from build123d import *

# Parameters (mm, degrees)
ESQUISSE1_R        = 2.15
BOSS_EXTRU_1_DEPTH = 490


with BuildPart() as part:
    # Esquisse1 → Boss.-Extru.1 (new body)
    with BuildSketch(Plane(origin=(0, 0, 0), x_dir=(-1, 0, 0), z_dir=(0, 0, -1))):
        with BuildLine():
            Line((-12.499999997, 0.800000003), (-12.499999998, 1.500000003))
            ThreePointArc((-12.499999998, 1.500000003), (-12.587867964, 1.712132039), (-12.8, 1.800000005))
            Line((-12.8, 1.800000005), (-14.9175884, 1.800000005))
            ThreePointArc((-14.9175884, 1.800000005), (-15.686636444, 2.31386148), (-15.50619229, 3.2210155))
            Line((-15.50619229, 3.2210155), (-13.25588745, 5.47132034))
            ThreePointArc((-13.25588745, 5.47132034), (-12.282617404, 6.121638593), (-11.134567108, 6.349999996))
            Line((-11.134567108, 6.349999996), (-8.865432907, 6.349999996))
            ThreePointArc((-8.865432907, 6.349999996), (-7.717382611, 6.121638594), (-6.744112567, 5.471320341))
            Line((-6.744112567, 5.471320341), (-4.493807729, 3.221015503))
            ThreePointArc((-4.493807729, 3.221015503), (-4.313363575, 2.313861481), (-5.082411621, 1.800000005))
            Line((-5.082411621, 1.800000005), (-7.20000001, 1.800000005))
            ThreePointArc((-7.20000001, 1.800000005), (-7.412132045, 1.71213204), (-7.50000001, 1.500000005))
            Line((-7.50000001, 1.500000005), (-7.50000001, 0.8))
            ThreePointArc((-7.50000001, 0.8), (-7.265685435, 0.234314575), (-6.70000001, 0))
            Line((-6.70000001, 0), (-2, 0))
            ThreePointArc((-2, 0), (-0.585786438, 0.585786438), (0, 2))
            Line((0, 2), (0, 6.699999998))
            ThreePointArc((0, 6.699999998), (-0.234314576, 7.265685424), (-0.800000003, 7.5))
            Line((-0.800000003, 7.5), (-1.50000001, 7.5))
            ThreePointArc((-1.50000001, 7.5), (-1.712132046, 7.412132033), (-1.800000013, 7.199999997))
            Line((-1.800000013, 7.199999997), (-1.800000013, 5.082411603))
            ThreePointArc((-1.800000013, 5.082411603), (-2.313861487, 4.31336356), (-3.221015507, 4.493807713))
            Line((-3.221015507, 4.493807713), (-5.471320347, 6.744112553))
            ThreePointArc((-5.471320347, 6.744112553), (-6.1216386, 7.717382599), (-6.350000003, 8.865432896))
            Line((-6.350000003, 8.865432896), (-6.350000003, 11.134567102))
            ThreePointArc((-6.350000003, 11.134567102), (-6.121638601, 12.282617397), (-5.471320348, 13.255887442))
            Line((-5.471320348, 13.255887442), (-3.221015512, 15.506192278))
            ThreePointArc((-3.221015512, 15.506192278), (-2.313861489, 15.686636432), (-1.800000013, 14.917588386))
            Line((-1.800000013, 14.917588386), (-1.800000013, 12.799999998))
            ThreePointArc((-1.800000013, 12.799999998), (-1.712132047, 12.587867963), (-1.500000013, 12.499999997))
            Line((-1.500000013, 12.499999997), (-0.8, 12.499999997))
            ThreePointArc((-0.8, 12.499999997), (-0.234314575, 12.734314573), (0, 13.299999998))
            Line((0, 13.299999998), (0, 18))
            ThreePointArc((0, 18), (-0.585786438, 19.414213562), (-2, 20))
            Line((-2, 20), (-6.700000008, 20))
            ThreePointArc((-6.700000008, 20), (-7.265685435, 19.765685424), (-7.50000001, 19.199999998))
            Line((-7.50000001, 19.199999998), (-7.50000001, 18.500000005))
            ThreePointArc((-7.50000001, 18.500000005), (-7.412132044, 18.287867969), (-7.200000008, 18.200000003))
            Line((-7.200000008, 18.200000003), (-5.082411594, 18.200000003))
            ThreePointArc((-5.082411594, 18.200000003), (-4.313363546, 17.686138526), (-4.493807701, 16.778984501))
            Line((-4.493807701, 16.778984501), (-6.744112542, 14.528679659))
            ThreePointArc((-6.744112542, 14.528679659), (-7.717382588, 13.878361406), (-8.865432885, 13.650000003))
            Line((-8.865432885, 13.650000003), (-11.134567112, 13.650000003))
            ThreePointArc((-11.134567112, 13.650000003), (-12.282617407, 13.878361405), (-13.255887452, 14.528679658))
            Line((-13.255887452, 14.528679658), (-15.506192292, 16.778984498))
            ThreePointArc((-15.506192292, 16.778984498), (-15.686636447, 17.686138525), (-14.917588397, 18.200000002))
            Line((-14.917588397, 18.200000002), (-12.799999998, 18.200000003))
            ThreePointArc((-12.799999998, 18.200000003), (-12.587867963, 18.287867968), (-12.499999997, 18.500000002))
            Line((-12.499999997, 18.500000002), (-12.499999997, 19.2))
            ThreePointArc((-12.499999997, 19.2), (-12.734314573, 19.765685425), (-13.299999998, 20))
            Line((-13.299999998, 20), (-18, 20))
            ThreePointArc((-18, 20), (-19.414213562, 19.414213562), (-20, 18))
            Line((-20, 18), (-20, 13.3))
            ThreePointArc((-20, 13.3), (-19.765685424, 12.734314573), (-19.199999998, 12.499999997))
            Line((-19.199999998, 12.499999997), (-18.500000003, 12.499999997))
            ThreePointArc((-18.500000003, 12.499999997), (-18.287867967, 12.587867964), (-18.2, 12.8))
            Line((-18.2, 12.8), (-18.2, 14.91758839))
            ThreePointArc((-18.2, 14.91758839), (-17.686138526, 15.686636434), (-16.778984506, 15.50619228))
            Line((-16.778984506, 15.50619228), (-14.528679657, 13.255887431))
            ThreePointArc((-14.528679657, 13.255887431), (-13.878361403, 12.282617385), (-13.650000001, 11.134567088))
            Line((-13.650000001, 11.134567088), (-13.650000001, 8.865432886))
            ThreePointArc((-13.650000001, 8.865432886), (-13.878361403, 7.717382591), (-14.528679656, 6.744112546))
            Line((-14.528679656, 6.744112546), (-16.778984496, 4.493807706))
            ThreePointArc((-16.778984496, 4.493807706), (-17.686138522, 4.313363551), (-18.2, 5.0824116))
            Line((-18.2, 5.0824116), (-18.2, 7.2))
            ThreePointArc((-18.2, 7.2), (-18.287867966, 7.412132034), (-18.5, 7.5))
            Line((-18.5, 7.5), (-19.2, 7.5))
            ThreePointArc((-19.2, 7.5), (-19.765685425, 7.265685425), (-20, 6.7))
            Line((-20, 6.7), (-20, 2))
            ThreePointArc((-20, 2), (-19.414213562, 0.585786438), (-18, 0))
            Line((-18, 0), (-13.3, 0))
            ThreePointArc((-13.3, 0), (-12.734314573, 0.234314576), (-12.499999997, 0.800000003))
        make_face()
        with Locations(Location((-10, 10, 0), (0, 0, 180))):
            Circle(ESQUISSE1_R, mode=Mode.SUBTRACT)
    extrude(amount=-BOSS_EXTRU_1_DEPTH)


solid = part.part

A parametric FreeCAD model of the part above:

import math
import FreeCAD as App
import Part
import Sketcher
from FreeCAD import Vector

doc = App.newDocument("Part")
body = doc.addObject("PartDesign::Body", "Body")

# Sketch on XY plane
sketch1 = body.newObject("Sketcher::SketchObject", "Sketch")
sketch1.AttachmentSupport = (doc.getObject("XY_Plane"), [""])
sketch1.MapMode = "FlatFace"
sketch1.addGeometry(Part.LineSegment(Vector(12.5, 0.8, 0), Vector(12.5, 1.5, 0)), False)
sketch1.addGeometry(Part.ArcOfCircle(Part.Circle(Vector(12.8, 1.5, 0), Vector(0, 0, 1), 0.3), math.radians(90), math.radians(180)), False)
sketch1.addGeometry(Part.LineSegment(Vector(12.8, 1.8, 0), Vector(14.92, 1.8, 0)), False)
sketch1.addGeometry(Part.ArcOfCircle(Part.Circle(Vector(14.92, 2.63, 0), Vector(0, 0, 1), 0.83), math.radians(-90), math.radians(45)), False)
sketch1.addGeometry(Part.LineSegment(Vector(15.51, 3.22, 0), Vector(13.26, 5.47, 0)), False)
sketch1.addGeometry(Part.ArcOfCircle(Part.Circle(Vector(11.13, 3.35, 0), Vector(0, 0, 1), 3), math.radians(45), math.radians(90)), False)
sketch1.addGeometry(Part.LineSegment(Vector(11.13, 6.35, 0), Vector(8.87, 6.35, 0)), False)
sketch1.addGeometry(Part.ArcOfCircle(Part.Circle(Vector(8.87, 3.35, 0), Vector(0, 0, 1), 3), math.radians(90), math.radians(135)), False)
sketch1.addGeometry(Part.LineSegment(Vector(6.74, 5.47, 0), Vector(4.49, 3.22, 0)), False)
sketch1.addGeometry(Part.ArcOfCircle(Part.Circle(Vector(5.08, 2.63, 0), Vector(0, 0, 1), 0.83), math.radians(135), math.radians(270)), False)
sketch1.addGeometry(Part.LineSegment(Vector(5.08, 1.8, 0), Vector(7.2, 1.8, 0)), False)
sketch1.addGeometry(Part.ArcOfCircle(Part.Circle(Vector(7.2, 1.5, 0), Vector(0, 0, 1), 0.3), math.radians(0), math.radians(90)), False)
sketch1.addGeometry(Part.LineSegment(Vector(7.5, 1.5, 0), Vector(7.5, 0.8, 0)), False)
sketch1.addGeometry(Part.ArcOfCircle(Part.Circle(Vector(6.7, 0.8, 0), Vector(0, 0, 1), 0.8), math.radians(-90), math.radians(0)), False)
sketch1.addGeometry(Part.LineSegment(Vector(6.7, 0, 0), Vector(2, 0, 0)), False)
sketch1.addGeometry(Part.ArcOfCircle(Part.Circle(Vector(2, 2, 0), Vector(0, 0, 1), 2), math.radians(-180), math.radians(-90)), False)
sketch1.addGeometry(Part.LineSegment(Vector(0, 2, 0), Vector(0, 6.7, 0)), False)
sketch1.addGeometry(Part.ArcOfCircle(Part.Circle(Vector(0.8, 6.7, 0), Vector(0, 0, 1), 0.8), math.radians(90), math.radians(180)), False)
sketch1.addGeometry(Part.LineSegment(Vector(0.8, 7.5, 0), Vector(1.5, 7.5, 0)), False)
sketch1.addGeometry(Part.ArcOfCircle(Part.Circle(Vector(1.5, 7.2, 0), Vector(0, 0, 1), 0.3), math.radians(0), math.radians(90)), False)
sketch1.addGeometry(Part.LineSegment(Vector(1.8, 7.2, 0), Vector(1.8, 5.08, 0)), False)
sketch1.addGeometry(Part.ArcOfCircle(Part.Circle(Vector(2.63, 5.08, 0), Vector(0, 0, 1), 0.83), math.radians(-180), math.radians(-45)), False)
sketch1.addGeometry(Part.LineSegment(Vector(3.22, 4.49, 0), Vector(5.47, 6.74, 0)), False)
sketch1.addGeometry(Part.ArcOfCircle(Part.Circle(Vector(3.35, 8.87, 0), Vector(0, 0, 1), 3), math.radians(-45), math.radians(0)), False)
sketch1.addGeometry(Part.LineSegment(Vector(6.35, 8.87, 0), Vector(6.35, 11.13, 0)), False)
sketch1.addGeometry(Part.ArcOfCircle(Part.Circle(Vector(3.35, 11.13, 0), Vector(0, 0, 1), 3), math.radians(0), math.radians(45)), False)
sketch1.addGeometry(Part.LineSegment(Vector(5.47, 13.26, 0), Vector(3.22, 15.51, 0)), False)
sketch1.addGeometry(Part.ArcOfCircle(Part.Circle(Vector(2.63, 14.92, 0), Vector(0, 0, 1), 0.83), math.radians(45), math.radians(180)), False)
sketch1.addGeometry(Part.LineSegment(Vector(1.8, 14.92, 0), Vector(1.8, 12.8, 0)), False)
sketch1.addGeometry(Part.ArcOfCircle(Part.Circle(Vector(1.5, 12.8, 0), Vector(0, 0, 1), 0.3), math.radians(-90), math.radians(0)), False)
sketch1.addGeometry(Part.LineSegment(Vector(1.5, 12.5, 0), Vector(0.8, 12.5, 0)), False)
sketch1.addGeometry(Part.ArcOfCircle(Part.Circle(Vector(0.8, 13.3, 0), Vector(0, 0, 1), 0.8), math.radians(-180), math.radians(-90)), False)
sketch1.addGeometry(Part.LineSegment(Vector(0, 13.3, 0), Vector(0, 18, 0)), False)
sketch1.addGeometry(Part.ArcOfCircle(Part.Circle(Vector(2, 18, 0), Vector(0, 0, 1), 2), math.radians(90), math.radians(180)), False)
sketch1.addGeometry(Part.LineSegment(Vector(2, 20, 0), Vector(6.7, 20, 0)), False)
sketch1.addGeometry(Part.ArcOfCircle(Part.Circle(Vector(6.7, 19.2, 0), Vector(0, 0, 1), 0.8), math.radians(0), math.radians(90)), False)
sketch1.addGeometry(Part.LineSegment(Vector(7.5, 19.2, 0), Vector(7.5, 18.5, 0)), False)
sketch1.addGeometry(Part.ArcOfCircle(Part.Circle(Vector(7.2, 18.5, 0), Vector(0, 0, 1), 0.3), math.radians(-90), math.radians(0)), False)
sketch1.addGeometry(Part.LineSegment(Vector(7.2, 18.2, 0), Vector(5.08, 18.2, 0)), False)
sketch1.addGeometry(Part.ArcOfCircle(Part.Circle(Vector(5.08, 17.37, 0), Vector(0, 0, 1), 0.83), math.radians(90), math.radians(225)), False)
sketch1.addGeometry(Part.LineSegment(Vector(4.49, 16.78, 0), Vector(6.74, 14.53, 0)), False)
sketch1.addGeometry(Part.ArcOfCircle(Part.Circle(Vector(8.87, 16.65, 0), Vector(0, 0, 1), 3), math.radians(-135), math.radians(-90)), False)
sketch1.addGeometry(Part.LineSegment(Vector(8.87, 13.65, 0), Vector(11.13, 13.65, 0)), False)
sketch1.addGeometry(Part.ArcOfCircle(Part.Circle(Vector(11.13, 16.65, 0), Vector(0, 0, 1), 3), math.radians(-90), math.radians(-45)), False)
sketch1.addGeometry(Part.LineSegment(Vector(13.26, 14.53, 0), Vector(15.51, 16.78, 0)), False)
sketch1.addGeometry(Part.ArcOfCircle(Part.Circle(Vector(14.92, 17.37, 0), Vector(0, 0, 1), 0.83), math.radians(-45), math.radians(90)), False)
sketch1.addGeometry(Part.LineSegment(Vector(14.92, 18.2, 0), Vector(12.8, 18.2, 0)), False)
sketch1.addGeometry(Part.ArcOfCircle(Part.Circle(Vector(12.8, 18.5, 0), Vector(0, 0, 1), 0.3), math.radians(-180), math.radians(-90)), False)
sketch1.addGeometry(Part.LineSegment(Vector(12.5, 18.5, 0), Vector(12.5, 19.2, 0)), False)
sketch1.addGeometry(Part.ArcOfCircle(Part.Circle(Vector(13.3, 19.2, 0), Vector(0, 0, 1), 0.8), math.radians(90), math.radians(180)), False)
sketch1.addGeometry(Part.LineSegment(Vector(13.3, 20, 0), Vector(18, 20, 0)), False)
sketch1.addGeometry(Part.ArcOfCircle(Part.Circle(Vector(18, 18, 0), Vector(0, 0, 1), 2), math.radians(0), math.radians(90)), False)
sketch1.addGeometry(Part.LineSegment(Vector(20, 18, 0), Vector(20, 13.3, 0)), False)
sketch1.addGeometry(Part.ArcOfCircle(Part.Circle(Vector(19.2, 13.3, 0), Vector(0, 0, 1), 0.8), math.radians(-90), math.radians(0)), False)
sketch1.addGeometry(Part.LineSegment(Vector(19.2, 12.5, 0), Vector(18.5, 12.5, 0)), False)
sketch1.addGeometry(Part.ArcOfCircle(Part.Circle(Vector(18.5, 12.8, 0), Vector(0, 0, 1), 0.3), math.radians(-180), math.radians(-90)), False)
sketch1.addGeometry(Part.LineSegment(Vector(18.2, 12.8, 0), Vector(18.2, 14.92, 0)), False)
sketch1.addGeometry(Part.ArcOfCircle(Part.Circle(Vector(17.37, 14.92, 0), Vector(0, 0, 1), 0.83), math.radians(0), math.radians(135)), False)
sketch1.addGeometry(Part.LineSegment(Vector(16.78, 15.51, 0), Vector(14.53, 13.26, 0)), False)
sketch1.addGeometry(Part.ArcOfCircle(Part.Circle(Vector(16.65, 11.13, 0), Vector(0, 0, 1), 3), math.radians(135), math.radians(180)), False)
sketch1.addGeometry(Part.LineSegment(Vector(13.65, 11.13, 0), Vector(13.65, 8.87, 0)), False)
sketch1.addGeometry(Part.ArcOfCircle(Part.Circle(Vector(16.65, 8.87, 0), Vector(0, 0, 1), 3), math.radians(180), math.radians(225)), False)
sketch1.addGeometry(Part.LineSegment(Vector(14.53, 6.74, 0), Vector(16.78, 4.49, 0)), False)
sketch1.addGeometry(Part.ArcOfCircle(Part.Circle(Vector(17.37, 5.08, 0), Vector(0, 0, 1), 0.83), math.radians(-135), math.radians(0)), False)
sketch1.addGeometry(Part.LineSegment(Vector(18.2, 5.08, 0), Vector(18.2, 7.2, 0)), False)
sketch1.addGeometry(Part.ArcOfCircle(Part.Circle(Vector(18.5, 7.2, 0), Vector(0, 0, 1), 0.3), math.radians(90), math.radians(180)), False)
sketch1.addGeometry(Part.LineSegment(Vector(18.5, 7.5, 0), Vector(19.2, 7.5, 0)), False)
sketch1.addGeometry(Part.ArcOfCircle(Part.Circle(Vector(19.2, 6.7, 0), Vector(0, 0, 1), 0.8), math.radians(0), math.radians(90)), False)
sketch1.addGeometry(Part.LineSegment(Vector(20, 6.7, 0), Vector(20, 2, 0)), False)
sketch1.addGeometry(Part.ArcOfCircle(Part.Circle(Vector(18, 2, 0), Vector(0, 0, 1), 2), math.radians(-90), math.radians(0)), False)
sketch1.addGeometry(Part.LineSegment(Vector(18, 0, 0), Vector(13.3, 0, 0)), False)
sketch1.addGeometry(Part.ArcOfCircle(Part.Circle(Vector(13.3, 0.8, 0), Vector(0, 0, 1), 0.8), math.radians(180), math.radians(270)), False)
sketch1.addGeometry(Part.Circle(Vector(10, 10, 0), Vector(0, 0, 1), 2.15), False)
sketch1.addConstraint(Sketcher.Constraint("Tangent", 0, 2, 1, 2))
sketch1.addConstraint(Sketcher.Constraint("Tangent", 1, 1, 2, 1))
sketch1.addConstraint(Sketcher.Constraint("Tangent", 2, 2, 3, 1))
sketch1.addConstraint(Sketcher.Constraint("Tangent", 3, 2, 4, 1))
sketch1.addConstraint(Sketcher.Constraint("Tangent", 4, 2, 5, 1))
sketch1.addConstraint(Sketcher.Constraint("Tangent", 5, 2, 6, 1))
sketch1.addConstraint(Sketcher.Constraint("Tangent", 6, 2, 7, 1))
sketch1.addConstraint(Sketcher.Constraint("Tangent", 7, 2, 8, 1))
sketch1.addConstraint(Sketcher.Constraint("Tangent", 8, 2, 9, 1))
sketch1.addConstraint(Sketcher.Constraint("Tangent", 9, 2, 10, 1))
sketch1.addConstraint(Sketcher.Constraint("Tangent", 10, 2, 11, 2))
sketch1.addConstraint(Sketcher.Constraint("Tangent", 11, 1, 12, 1))
sketch1.addConstraint(Sketcher.Constraint("Tangent", 12, 2, 13, 2))
sketch1.addConstraint(Sketcher.Constraint("Tangent", 13, 1, 14, 1))
sketch1.addConstraint(Sketcher.Constraint("Tangent", 14, 2, 15, 2))
sketch1.addConstraint(Sketcher.Constraint("Tangent", 15, 1, 16, 1))
sketch1.addConstraint(Sketcher.Constraint("Tangent", 16, 2, 17, 2))
sketch1.addConstraint(Sketcher.Constraint("Tangent", 17, 1, 18, 1))
sketch1.addConstraint(Sketcher.Constraint("Tangent", 18, 2, 19, 2))
sketch1.addConstraint(Sketcher.Constraint("Tangent", 19, 1, 20, 1))
sketch1.addConstraint(Sketcher.Constraint("Tangent", 20, 2, 21, 1))
sketch1.addConstraint(Sketcher.Constraint("Tangent", 21, 2, 22, 1))
sketch1.addConstraint(Sketcher.Constraint("Tangent", 22, 2, 23, 1))
sketch1.addConstraint(Sketcher.Constraint("Tangent", 23, 2, 24, 1))
sketch1.addConstraint(Sketcher.Constraint("Tangent", 24, 2, 25, 1))
sketch1.addConstraint(Sketcher.Constraint("Tangent", 25, 2, 26, 1))
sketch1.addConstraint(Sketcher.Constraint("Tangent", 26, 2, 27, 1))
sketch1.addConstraint(Sketcher.Constraint("Tangent", 27, 2, 28, 1))
sketch1.addConstraint(Sketcher.Constraint("Tangent", 28, 2, 29, 2))
sketch1.addConstraint(Sketcher.Constraint("Tangent", 29, 1, 30, 1))
sketch1.addConstraint(Sketcher.Constraint("Tangent", 30, 2, 31, 2))
sketch1.addConstraint(Sketcher.Constraint("Tangent", 31, 1, 32, 1))
sketch1.addConstraint(Sketcher.Constraint("Tangent", 32, 2, 33, 2))
sketch1.addConstraint(Sketcher.Constraint("Tangent", 33, 1, 34, 1))
sketch1.addConstraint(Sketcher.Constraint("Tangent", 34, 2, 35, 2))
sketch1.addConstraint(Sketcher.Constraint("Tangent", 35, 1, 36, 1))
sketch1.addConstraint(Sketcher.Constraint("Tangent", 36, 2, 37, 2))
sketch1.addConstraint(Sketcher.Constraint("Tangent", 37, 1, 38, 1))
sketch1.addConstraint(Sketcher.Constraint("Tangent", 38, 2, 39, 1))
sketch1.addConstraint(Sketcher.Constraint("Tangent", 39, 2, 40, 1))
sketch1.addConstraint(Sketcher.Constraint("Tangent", 40, 2, 41, 1))
sketch1.addConstraint(Sketcher.Constraint("Tangent", 41, 2, 42, 1))
sketch1.addConstraint(Sketcher.Constraint("Tangent", 42, 2, 43, 1))
sketch1.addConstraint(Sketcher.Constraint("Tangent", 43, 2, 44, 1))
sketch1.addConstraint(Sketcher.Constraint("Tangent", 44, 2, 45, 1))
sketch1.addConstraint(Sketcher.Constraint("Tangent", 45, 2, 46, 1))
sketch1.addConstraint(Sketcher.Constraint("Tangent", 46, 2, 47, 2))
sketch1.addConstraint(Sketcher.Constraint("Tangent", 47, 1, 48, 1))
sketch1.addConstraint(Sketcher.Constraint("Tangent", 48, 2, 49, 2))
sketch1.addConstraint(Sketcher.Constraint("Tangent", 49, 1, 50, 1))
sketch1.addConstraint(Sketcher.Constraint("Tangent", 50, 2, 51, 2))
sketch1.addConstraint(Sketcher.Constraint("Tangent", 51, 1, 52, 1))
sketch1.addConstraint(Sketcher.Constraint("Tangent", 52, 2, 53, 2))
sketch1.addConstraint(Sketcher.Constraint("Tangent", 53, 1, 54, 1))
sketch1.addConstraint(Sketcher.Constraint("Tangent", 54, 2, 55, 2))
sketch1.addConstraint(Sketcher.Constraint("Tangent", 55, 1, 56, 1))
sketch1.addConstraint(Sketcher.Constraint("Tangent", 56, 2, 57, 1))
sketch1.addConstraint(Sketcher.Constraint("Tangent", 57, 2, 58, 1))
sketch1.addConstraint(Sketcher.Constraint("Tangent", 58, 2, 59, 1))
sketch1.addConstraint(Sketcher.Constraint("Tangent", 59, 2, 60, 1))
sketch1.addConstraint(Sketcher.Constraint("Tangent", 60, 2, 61, 1))
sketch1.addConstraint(Sketcher.Constraint("Tangent", 61, 2, 62, 1))
sketch1.addConstraint(Sketcher.Constraint("Tangent", 62, 2, 63, 1))
sketch1.addConstraint(Sketcher.Constraint("Tangent", 63, 2, 64, 1))
sketch1.addConstraint(Sketcher.Constraint("Tangent", 64, 2, 65, 2))
sketch1.addConstraint(Sketcher.Constraint("Tangent", 65, 1, 66, 1))
sketch1.addConstraint(Sketcher.Constraint("Tangent", 66, 2, 67, 2))
sketch1.addConstraint(Sketcher.Constraint("Tangent", 67, 1, 68, 1))
sketch1.addConstraint(Sketcher.Constraint("Tangent", 68, 2, 69, 2))
sketch1.addConstraint(Sketcher.Constraint("Tangent", 69, 1, 70, 1))
sketch1.addConstraint(Sketcher.Constraint("Tangent", 70, 2, 71, 2))
sketch1.addConstraint(Sketcher.Constraint("Tangent", 71, 1, 0, 1))
sketch1.addConstraint(Sketcher.Constraint("Vertical", 0))
sketch1.addConstraint(Sketcher.Constraint("Horizontal", 2))
sketch1.addConstraint(Sketcher.Constraint("Horizontal", 6))
sketch1.addConstraint(Sketcher.Constraint("Horizontal", 10))
sketch1.addConstraint(Sketcher.Constraint("Vertical", 12))
sketch1.addConstraint(Sketcher.Constraint("Horizontal", 14))
sketch1.addConstraint(Sketcher.Constraint("Vertical", 16))
sketch1.addConstraint(Sketcher.Constraint("Horizontal", 18))
sketch1.addConstraint(Sketcher.Constraint("Vertical", 20))
sketch1.addConstraint(Sketcher.Constraint("Vertical", 24))
sketch1.addConstraint(Sketcher.Constraint("Vertical", 28))
sketch1.addConstraint(Sketcher.Constraint("Horizontal", 30))
sketch1.addConstraint(Sketcher.Constraint("Vertical", 32))
sketch1.addConstraint(Sketcher.Constraint("Horizontal", 34))
sketch1.addConstraint(Sketcher.Constraint("Vertical", 36))
sketch1.addConstraint(Sketcher.Constraint("Horizontal", 38))
sketch1.addConstraint(Sketcher.Constraint("Horizontal", 42))
sketch1.addConstraint(Sketcher.Constraint("Horizontal", 46))
sketch1.addConstraint(Sketcher.Constraint("Vertical", 48))
sketch1.addConstraint(Sketcher.Constraint("Horizontal", 50))
sketch1.addConstraint(Sketcher.Constraint("Vertical", 52))
sketch1.addConstraint(Sketcher.Constraint("Horizontal", 54))
sketch1.addConstraint(Sketcher.Constraint("Vertical", 56))
sketch1.addConstraint(Sketcher.Constraint("Vertical", 60))
sketch1.addConstraint(Sketcher.Constraint("Vertical", 64))
sketch1.addConstraint(Sketcher.Constraint("Horizontal", 66))
sketch1.addConstraint(Sketcher.Constraint("Vertical", 68))
sketch1.addConstraint(Sketcher.Constraint("Horizontal", 70))
sketch1.addConstraint(Sketcher.Constraint("Equal", 5, 7))
sketch1.addConstraint(Sketcher.Constraint("Equal", 3, 9))
sketch1.addConstraint(Sketcher.Constraint("Equal", 1, 11))
sketch1.addConstraint(Sketcher.Constraint("Equal", 13, 17))
sketch1.addConstraint(Sketcher.Constraint("Equal", 11, 19))
sketch1.addConstraint(Sketcher.Constraint("Equal", 9, 21))
sketch1.addConstraint(Sketcher.Constraint("Equal", 7, 23))
sketch1.addConstraint(Sketcher.Constraint("Equal", 23, 25))
sketch1.addConstraint(Sketcher.Constraint("Equal", 21, 27))
sketch1.addConstraint(Sketcher.Constraint("Equal", 19, 29))
sketch1.addConstraint(Sketcher.Constraint("Equal", 17, 31))
sketch1.addConstraint(Sketcher.Constraint("Equal", 15, 33))
sketch1.addConstraint(Sketcher.Constraint("Equal", 31, 35))
sketch1.addConstraint(Sketcher.Constraint("Equal", 29, 37))
sketch1.addConstraint(Sketcher.Constraint("Equal", 27, 39))
sketch1.addConstraint(Sketcher.Constraint("Equal", 25, 41))
sketch1.addConstraint(Sketcher.Constraint("Equal", 41, 43))
sketch1.addConstraint(Sketcher.Constraint("Equal", 39, 45))
sketch1.addConstraint(Sketcher.Constraint("Equal", 37, 47))
sketch1.addConstraint(Sketcher.Constraint("Equal", 35, 49))
sketch1.addConstraint(Sketcher.Constraint("Equal", 33, 51))
sketch1.addConstraint(Sketcher.Constraint("Equal", 49, 53))
sketch1.addConstraint(Sketcher.Constraint("Equal", 47, 55))
sketch1.addConstraint(Sketcher.Constraint("Equal", 45, 57))
sketch1.addConstraint(Sketcher.Constraint("Equal", 43, 59))
sketch1.addConstraint(Sketcher.Constraint("Equal", 59, 61))
sketch1.addConstraint(Sketcher.Constraint("Equal", 57, 63))
sketch1.addConstraint(Sketcher.Constraint("Equal", 55, 65))
sketch1.addConstraint(Sketcher.Constraint("Equal", 53, 67))
sketch1.addConstraint(Sketcher.Constraint("Equal", 51, 69))
sketch1.addConstraint(Sketcher.Constraint("Equal", 67, 71))
sketch1.addConstraint(Sketcher.Constraint("PointOnObject", 13, 1, -1))
sketch1.addConstraint(Sketcher.Constraint("PointOnObject", 15, 1, -2))
sketch1.addConstraint(Sketcher.Constraint("PointOnObject", 31, 1, -2))
sketch1.addConstraint(Sketcher.Constraint("PointOnObject", 69, 1, -1))
sketch1.addConstraint(Sketcher.Constraint("Perpendicular", 4, 8))
sketch1.addConstraint(Sketcher.Constraint("Parallel", 8, 22))
sketch1.addConstraint(Sketcher.Constraint("Perpendicular", 22, 26))
sketch1.addConstraint(Sketcher.Constraint("Parallel", 26, 40))
sketch1.addConstraint(Sketcher.Constraint("Perpendicular", 40, 44))
sketch1.addConstraint(Sketcher.Constraint("Parallel", 44, 58))
sketch1.addConstraint(Sketcher.Constraint("Perpendicular", 58, 62))
sketch1.addConstraint(Sketcher.Constraint("Horizontal", 3, 3, 9, 3))
sketch1.addConstraint(Sketcher.Constraint("Horizontal", 39, 3, 45, 3))
sketch1.addConstraint(Sketcher.Constraint("Horizontal", 35, 3, 49, 3))
sketch1.addConstraint(Sketcher.Constraint("Horizontal", 31, 3, 53, 3))
sketch1.addConstraint(Sketcher.Constraint("Horizontal", 27, 3, 57, 3))
sketch1.addConstraint(Sketcher.Constraint("Horizontal", 25, 3, 59, 3))
sketch1.addConstraint(Sketcher.Constraint("Horizontal", 23, 3, 61, 3))
sketch1.addConstraint(Sketcher.Constraint("Horizontal", 21, 3, 63, 3))
sketch1.addConstraint(Sketcher.Constraint("Horizontal", 19, 3, 65, 3))
sketch1.addConstraint(Sketcher.Constraint("Horizontal", 4, 2, 7, 2))
sketch1.addConstraint(Sketcher.Constraint("Vertical", 21, 3, 27, 3))
sketch1.addConstraint(Sketcher.Constraint("Vertical", 13, 3, 35, 3))
sketch1.addConstraint(Sketcher.Constraint("Vertical", 9, 3, 39, 3))
sketch1.addConstraint(Sketcher.Constraint("Vertical", 7, 3, 41, 3))
sketch1.addConstraint(Sketcher.Constraint("Vertical", 5, 3, 43, 3))
sketch1.addConstraint(Sketcher.Constraint("Vertical", 1, 3, 47, 3))
sketch1.addConstraint(Sketcher.Constraint("Vertical", 53, 3, 67, 3))
sketch1.addConstraint(Sketcher.Constraint("Equal", 2, 10))
sketch1.addConstraint(Sketcher.Constraint("Equal", 34, 50))
sketch1.addConstraint(Sketcher.Constraint("Equal", 30, 54))
sketch1.addConstraint(Sketcher.Constraint("Equal", 66, 0))
sketch1.addConstraint(Sketcher.Constraint("Equal", 70, 16))
sketch1.addConstraint(Sketcher.Constraint("Equal", 46, 20))
sketch1.addConstraint(Sketcher.Constraint("Equal", 42, 24))
sketch1.addConstraint(Sketcher.Constraint("Equal", 20, 28))
sketch1.addConstraint(Sketcher.Constraint("Equal", 16, 32))
sketch1.addConstraint(Sketcher.Constraint("Equal", 12, 36))
sketch1.addConstraint(Sketcher.Constraint("Equal", 8, 22))
sketch1.addConstraint(Sketcher.Constraint("Radius", 5, 3.0))
sketch1.addConstraint(Sketcher.Constraint("Radius", 15, 2.0))
sketch1.addConstraint(Sketcher.Constraint("Diameter", 72, 4.3))
sketch1.addConstraint(Sketcher.Constraint("Radius", 1, 0.3))
sketch1.addConstraint(Sketcher.Constraint("Radius", 13, 0.8))
sketch1.addConstraint(Sketcher.Constraint("DistanceX", 14, 2, 14, 1, 4.7))
sketch1.addConstraint(Sketcher.Constraint("DistanceX", 18, 1, 18, 2, 0.7))
sketch1.addConstraint(Sketcher.Constraint("DistanceY", -1, 1, 33, 3, 18.0))
sketch1.addConstraint(Sketcher.Constraint("DistanceX", -1, 1, 72, 3, 10.0))
sketch1.addConstraint(Sketcher.Constraint("DistanceY", -1, 1, 72, 3, 10.0))
sketch1.addConstraint(Sketcher.Constraint("DistanceY", -1, 1, 5, 3, 3.35))
sketch1.addConstraint(Sketcher.Constraint("Radius", 3, 0.832412))
sketch1.addConstraint(Sketcher.Constraint("DistanceX", 2, 1, 2, 2, 2.117588))
pad1 = body.newObject("PartDesign::Pad", "Pad")
pad1.Profile = sketch1
pad1.Length = 490

doc.recompute()
